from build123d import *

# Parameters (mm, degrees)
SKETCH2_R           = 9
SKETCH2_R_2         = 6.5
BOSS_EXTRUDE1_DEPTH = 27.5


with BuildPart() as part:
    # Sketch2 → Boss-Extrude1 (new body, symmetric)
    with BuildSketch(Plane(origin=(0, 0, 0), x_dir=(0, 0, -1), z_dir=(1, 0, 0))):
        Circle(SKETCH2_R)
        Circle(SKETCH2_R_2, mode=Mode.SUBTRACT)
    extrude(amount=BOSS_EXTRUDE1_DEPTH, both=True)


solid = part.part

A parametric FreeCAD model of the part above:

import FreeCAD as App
import Part
import Sketcher
Q = App.Units.Quantity

doc = App.newDocument("Part")
body = doc.addObject("PartDesign::Body", "Body")

sketch1 = doc.addObject("Sketcher::SketchObject", "Sketch")
body.addObject(sketch1)
sketch1.AttachmentSupport = (doc.YZ_Plane, [""])
sketch1.MapMode = "FlatFace"
sketch1.addGeometry([
    Part.Circle(App.Vector(0, 0, 0), App.Vector(0, 0, 1), 9),
    Part.Circle(App.Vector(0, 0, 0), App.Vector(0, 0, 1), 6),
], False)
sketch1.addConstraint([
    Sketcher.Constraint("Coincident", 0, 3, -1, 1),
    Sketcher.Constraint("Coincident", 1, 3, -1, 1),
    Sketcher.Constraint("Diameter", 0, Q("18 mm")),
    Sketcher.Constraint("Diameter", 1, Q("13 mm")),
])
pad1 = doc.addObject("PartDesign::Pad", "Pad")
body.addObject(pad1)
pad1.Profile = sketch1
pad1.Length = 55
pad1.Midplane = True

doc.recompute()
